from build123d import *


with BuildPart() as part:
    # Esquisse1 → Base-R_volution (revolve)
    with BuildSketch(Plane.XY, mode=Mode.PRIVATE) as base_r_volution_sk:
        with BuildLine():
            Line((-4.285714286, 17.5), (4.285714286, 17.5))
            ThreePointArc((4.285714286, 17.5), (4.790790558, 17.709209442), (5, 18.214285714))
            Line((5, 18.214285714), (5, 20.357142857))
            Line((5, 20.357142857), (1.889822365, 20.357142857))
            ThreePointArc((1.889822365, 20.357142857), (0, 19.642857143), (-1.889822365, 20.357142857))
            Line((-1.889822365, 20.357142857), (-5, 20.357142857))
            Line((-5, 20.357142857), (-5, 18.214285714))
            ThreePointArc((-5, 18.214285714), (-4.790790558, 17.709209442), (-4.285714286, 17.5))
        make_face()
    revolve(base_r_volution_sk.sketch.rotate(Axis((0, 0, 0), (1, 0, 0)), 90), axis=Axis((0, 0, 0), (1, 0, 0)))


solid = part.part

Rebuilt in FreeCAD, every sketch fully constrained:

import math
import FreeCAD as App
import Part
import Sketcher

doc = App.newDocument("Part")
body = doc.addObject("PartDesign::Body", "Body")

# Sketch on XY plane
sketch1 = body.newObject("Sketcher::SketchObject", "Sketch")
sketch1.AttachmentSupport = (doc.getObject("XY_Plane"), [""])
sketch1.MapMode = "FlatFace"
sketch1.addGeometry(Part.LineSegment(App.Vector(-4.3, 17.5, 0), App.Vector(4.3, 17.5, 0)), False)
sketch1.addGeometry(Part.ArcOfCircle(Part.Circle(App.Vector(4.3, 18.2, 0), App.Vector(0, 0, 1), 0.7), math.radians(-90), math.radians(0)), False)
sketch1.addGeometry(Part.LineSegment(App.Vector(5, 18.2, 0), App.Vector(5, 20.4, 0)), False)
sketch1.addGeometry(Part.LineSegment(App.Vector(5, 20.4, 0), App.Vector(1.9, 20.4, 0)), False)
sketch1.addGeometry(Part.ArcOfCircle(Part.Circle(App.Vector(0, 22.5, 0), App.Vector(0, 0, 1), 2.9), math.radians(-131), math.radians(-49)), False)
sketch1.addGeometry(Part.LineSegment(App.Vector(-1.9, 20.4, 0), App.Vector(-5, 20.4, 0)), False)
sketch1.addGeometry(Part.LineSegment(App.Vector(-5, 20.4, 0), App.Vector(-5, 18.2, 0)), False)
sketch1.addGeometry(Part.ArcOfCircle(Part.Circle(App.Vector(-4.3, 18.2, 0), App.Vector(0, 0, 1), 0.7), math.radians(180), math.radians(270)), False)
sketch1.addConstraint(Sketcher.Constraint("Tangent", 0, 2, 1, 1))
sketch1.addConstraint(Sketcher.Constraint("Tangent", 1, 2, 2, 1))
sketch1.addConstraint(Sketcher.Constraint("Coincident", 2, 2, 3, 1))
sketch1.addConstraint(Sketcher.Constraint("Coincident", 3, 2, 4, 2))
sketch1.addConstraint(Sketcher.Constraint("Coincident", 4, 1, 5, 1))
sketch1.addConstraint(Sketcher.Constraint("Coincident", 5, 2, 6, 1))
sketch1.addConstraint(Sketcher.Constraint("Tangent", 6, 2, 7, 1))
sketch1.addConstraint(Sketcher.Constraint("Tangent", 7, 2, 0, 1))
sketch1.addConstraint(Sketcher.Constraint("Horizontal", 0))
sketch1.addConstraint(Sketcher.Constraint("Vertical", 2))
sketch1.addConstraint(Sketcher.Constraint("Horizontal", 3))
sketch1.addConstraint(Sketcher.Constraint("Horizontal", 5))
sketch1.addConstraint(Sketcher.Constraint("Vertical", 6))
sketch1.addConstraint(Sketcher.Constraint("Equal", 1, 7))
sketch1.addConstraint(Sketcher.Constraint("Symmetric", 3, 2, 4, 1, -2))
sketch1.addConstraint(Sketcher.Constraint("Equal", 3, 5))
sketch1.addConstraint(Sketcher.Constraint("DistanceX", -1, 1, 1, 2, 5.0))
sketch1.addConstraint(Sketcher.Constraint("DistanceY", 0, 2, 4, 3, 5.0))
sketch1.addConstraint(Sketcher.Constraint("DistanceY", -1, 1, 4, 3, 22.5))
sketch1.addConstraint(Sketcher.Constraint("Radius", 1, 0.714286))
sketch1.addConstraint(Sketcher.Constraint("Radius", 4, 2.857143))
sketch1.addConstraint(Sketcher.Constraint("DistanceX", 3, 2, 3, 1, 3.110178))
revolution = body.newObject("PartDesign::Revolution", "Revolution")
revolution.Profile = sketch1
revolution.ReferenceAxis = (sketch1, ["H_Axis"])
revolution.Angle = 360

doc.recompute()
